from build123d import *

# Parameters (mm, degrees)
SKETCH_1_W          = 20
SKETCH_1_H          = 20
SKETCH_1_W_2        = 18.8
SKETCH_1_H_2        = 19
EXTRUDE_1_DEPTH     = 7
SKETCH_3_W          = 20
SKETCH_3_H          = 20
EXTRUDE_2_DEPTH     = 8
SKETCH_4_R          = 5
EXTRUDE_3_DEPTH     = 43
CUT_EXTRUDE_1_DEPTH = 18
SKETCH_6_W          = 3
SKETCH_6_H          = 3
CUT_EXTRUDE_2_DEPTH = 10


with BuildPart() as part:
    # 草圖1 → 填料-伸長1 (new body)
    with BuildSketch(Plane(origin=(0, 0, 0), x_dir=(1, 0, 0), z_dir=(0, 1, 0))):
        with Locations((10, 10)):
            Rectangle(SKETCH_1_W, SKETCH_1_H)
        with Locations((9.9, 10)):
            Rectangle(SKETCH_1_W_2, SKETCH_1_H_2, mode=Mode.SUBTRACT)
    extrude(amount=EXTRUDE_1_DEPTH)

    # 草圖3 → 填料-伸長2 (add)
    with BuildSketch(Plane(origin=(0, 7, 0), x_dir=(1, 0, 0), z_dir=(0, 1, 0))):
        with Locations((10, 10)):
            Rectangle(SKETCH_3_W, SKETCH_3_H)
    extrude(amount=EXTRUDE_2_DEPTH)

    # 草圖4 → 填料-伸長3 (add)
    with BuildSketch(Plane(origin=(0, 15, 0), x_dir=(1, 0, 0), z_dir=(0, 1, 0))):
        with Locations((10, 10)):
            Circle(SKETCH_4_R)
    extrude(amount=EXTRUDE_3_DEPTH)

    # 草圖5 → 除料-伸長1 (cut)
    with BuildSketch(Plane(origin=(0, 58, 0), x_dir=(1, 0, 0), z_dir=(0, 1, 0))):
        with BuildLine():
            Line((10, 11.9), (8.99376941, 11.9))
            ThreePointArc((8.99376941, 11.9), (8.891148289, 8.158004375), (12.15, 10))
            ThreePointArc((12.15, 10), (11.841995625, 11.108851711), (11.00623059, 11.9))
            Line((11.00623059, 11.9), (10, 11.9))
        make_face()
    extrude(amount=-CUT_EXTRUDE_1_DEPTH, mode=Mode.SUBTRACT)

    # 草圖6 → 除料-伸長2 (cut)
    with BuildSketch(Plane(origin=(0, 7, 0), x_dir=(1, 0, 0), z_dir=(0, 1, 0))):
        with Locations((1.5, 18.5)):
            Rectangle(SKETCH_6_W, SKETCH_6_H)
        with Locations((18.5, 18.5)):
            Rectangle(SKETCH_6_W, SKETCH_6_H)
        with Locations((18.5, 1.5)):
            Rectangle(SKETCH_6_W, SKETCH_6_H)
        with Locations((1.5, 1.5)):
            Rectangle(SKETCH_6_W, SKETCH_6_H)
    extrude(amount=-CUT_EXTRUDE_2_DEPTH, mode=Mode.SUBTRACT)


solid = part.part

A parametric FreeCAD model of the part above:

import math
import FreeCAD as App
import Part
import Sketcher
Q = App.Units.Quantity

doc = App.newDocument("Part")
body = doc.addObject("PartDesign::Body", "Body")

# Sketch on XZ plane
sketch1 = body.newObject("Sketcher::SketchObject", "Sketch")
sketch1.AttachmentSupport = (doc.getObject("XZ_Plane"), [""])
sketch1.MapMode = "FlatFace"
sketch1.addGeometry([
    Part.LineSegment(App.Vector(0, -20, 0), App.Vector(0, 0, 0)),  # 0
    Part.LineSegment(App.Vector(0, 0, 0), App.Vector(20, 0, 0)),  # 1
    Part.LineSegment(App.Vector(20, 0, 0), App.Vector(20, -20, 0)),  # 2
    Part.LineSegment(App.Vector(20, -20, 0), App.Vector(0, -20, 0)),  # 3
    Part.LineSegment(App.Vector(19, 0, 0), App.Vector(0, 0, 0)),  # 4
    Part.LineSegment(App.Vector(0, 0, 0), App.Vector(0, -20, 0)),  # 5
    Part.LineSegment(App.Vector(0, -20, 0), App.Vector(19, -20, 0)),  # 6
    Part.LineSegment(App.Vector(19, -20, 0), App.Vector(19, 0, 0)),  # 7
], False)
sketch1.addConstraint([
    Sketcher.Constraint("Coincident", 0, 2, 1, 1),
    Sketcher.Constraint("Coincident", 1, 2, 2, 1),
    Sketcher.Constraint("Coincident", 2, 2, 3, 1),
    Sketcher.Constraint("Coincident", 3, 2, 0, 1),
    Sketcher.Constraint("Coincident", 4, 2, 5, 1),
    Sketcher.Constraint("Coincident", 5, 2, 6, 1),
    Sketcher.Constraint("Coincident", 6, 2, 7, 1),
    Sketcher.Constraint("Coincident", 7, 2, 4, 1),
    Sketcher.Constraint("Vertical", 0),
    Sketcher.Constraint("Horizontal", 1),
    Sketcher.Constraint("Vertical", 2),
    Sketcher.Constraint("Horizontal", 3),
    Sketcher.Constraint("Horizontal", 4),
    Sketcher.Constraint("Vertical", 5),
    Sketcher.Constraint("Horizontal", 6),
    Sketcher.Constraint("Vertical", 7),
    Sketcher.Constraint("Coincident", 0, 2, -1, 1),
    Sketcher.Constraint("Equal", 3, 0),
    Sketcher.Constraint("DistanceX", 1, 1, 1, 2, Q("20 mm")),
    Sketcher.Constraint("DistanceY", 5, 2, 5, 1, Q("19 mm")),
    Sketcher.Constraint("DistanceX", 4, 2, 4, 1, Q("18.8 mm")),
    Sketcher.Constraint("DistanceX", -1, 1, 4, 2, Q("0.5 mm")),
    Sketcher.Constraint("DistanceY", 4, 2, -1, 1, Q("0.5 mm")),
])
pad1 = body.newObject("PartDesign::Pad", "Pad")
pad1.Profile = sketch1
pad1.Length = 7
pad1.Reversed = True

# Sketch on XZ plane
sketch2 = body.newObject("Sketcher::SketchObject", "Sketch001")
sketch2.AttachmentSupport = (doc.getObject("XZ_Plane"), [""])
sketch2.MapMode = "FlatFace"
sketch2.AttachmentOffset = App.Placement(App.Vector(0, 0, -7), App.Rotation())
sketch2.addGeometry([
    Part.LineSegment(App.Vector(0, -20, 0), App.Vector(0, 0, 0)),
    Part.LineSegment(App.Vector(0, 0, 0), App.Vector(20, 0, 0)),
    Part.LineSegment(App.Vector(20, 0, 0), App.Vector(20, -20, 0)),
    Part.LineSegment(App.Vector(20, -20, 0), App.Vector(0, -20, 0)),
], False)
sketch2.addConstraint([
    Sketcher.Constraint("Coincident", 0, 2, 1, 1),
    Sketcher.Constraint("Coincident", 1, 2, 2, 1),
    Sketcher.Constraint("Coincident", 2, 2, 3, 1),
    Sketcher.Constraint("Coincident", 3, 2, 0, 1),
    Sketcher.Constraint("Vertical", 0),
    Sketcher.Constraint("Horizontal", 1),
    Sketcher.Constraint("Vertical", 2),
    Sketcher.Constraint("Horizontal", 3),
    Sketcher.Constraint("Coincident", 0, 2, -1, 1),
    Sketcher.Constraint("Equal", 3, 0),
    Sketcher.Constraint("DistanceX", 1, 1, 1, 2, Q("20 mm")),
])
pad2 = body.newObject("PartDesign::Pad", "Pad001")
pad2.Profile = sketch2
pad2.Length = 8
pad2.Reversed = True

# Sketch on XZ plane
sketch3 = body.newObject("Sketcher::SketchObject", "Sketch002")
sketch3.AttachmentSupport = (doc.getObject("XZ_Plane"), [""])
sketch3.MapMode = "FlatFace"
sketch3.AttachmentOffset = App.Placement(App.Vector(0, 0, -15), App.Rotation())
sketch3.addGeometry(Part.Circle(App.Vector(10, -10, 0), App.Vector(0, 0, 1), 5), False)
sketch3.addConstraint([
    Sketcher.Constraint("Diameter", 0, Q("10 mm")),
    Sketcher.Constraint("DistanceX", -1, 1, 0, 3, Q("10 mm")),
    Sketcher.Constraint("DistanceY", 0, 3, -1, 1, Q("10 mm")),
])
pad3 = body.newObject("PartDesign::Pad", "Pad002")
pad3.Profile = sketch3
pad3.Length = 43
pad3.Reversed = True

# Sketch on XZ plane
sketch4 = body.newObject("Sketcher::SketchObject", "Sketch003")
sketch4.AttachmentSupport = (doc.getObject("XZ_Plane"), [""])
sketch4.MapMode = "FlatFace"
sketch4.AttachmentOffset = App.Placement(App.Vector(0, 0, -58), App.Rotation())
sketch4.addGeometry([
    Part.ArcOfCircle(Part.Circle(App.Vector(10, -10, 0), App.Vector(0, 0, 1), 2.1), math.radians(0), math.radians(242)),
    Part.ArcOfCircle(Part.Circle(App.Vector(10, -10, 0), App.Vector(0, 0, 1), 2.2), math.radians(-62), math.radians(0)),
    Part.LineSegment(App.Vector(11, -11.9, 0), App.Vector(9, -11.9, 0)),
], False)
sketch4.addConstraint([
    Sketcher.Constraint("Tangent", 0, 1, 1, 2),
    Sketcher.Constraint("Coincident", 1, 1, 2, 1),
    Sketcher.Constraint("Coincident", 2, 2, 0, 2),
    Sketcher.Constraint("Horizontal", 2),
    Sketcher.Constraint("Equal", 0, 1),
    Sketcher.Constraint("Horizontal", 1, 3, 0, 1),
    Sketcher.Constraint("Radius", 0, Q("2.15 mm")),
    Sketcher.Constraint("DistanceX", -1, 1, 0, 3, Q("10 mm")),
    Sketcher.Constraint("DistanceY", 0, 3, -1, 1, Q("10 mm")),
    Sketcher.Constraint("DistanceY", 1, 1, -1, 1, Q("11.9 mm")),
])
pocket1 = body.newObject("PartDesign::Pocket", "Pocket")
pocket1.Profile = sketch4
pocket1.Length = 18
pocket1.Reversed = True

# Sketch on XZ plane
sketch5 = body.newObject("Sketcher::SketchObject", "Sketch004")
sketch5.AttachmentSupport = (doc.getObject("XZ_Plane"), [""])
sketch5.MapMode = "FlatFace"
sketch5.AttachmentOffset = App.Placement(App.Vector(0, 0, -7), App.Rotation())
sketch5.addGeometry([
    Part.LineSegment(App.Vector(0, -20, 0), App.Vector(0, -17, 0)),  # 0
    Part.LineSegment(App.Vector(0, -17, 0), App.Vector(3, -17, 0)),  # 1
    Part.LineSegment(App.Vector(3, -17, 0), App.Vector(3, -20, 0)),  # 2
    Part.LineSegment(App.Vector(3, -20, 0), App.Vector(0, -20, 0)),  # 3
    Part.LineSegment(App.Vector(17, -20, 0), App.Vector(17, -17, 0)),  # 4
    Part.LineSegment(App.Vector(17, -17, 0), App.Vector(20, -17, 0)),  # 5
    Part.LineSegment(App.Vector(20, -17, 0), App.Vector(20, -20, 0)),  # 6
    Part.LineSegment(App.Vector(20, -20, 0), App.Vector(17, -20, 0)),  # 7
    Part.LineSegment(App.Vector(17, -3, 0), App.Vector(17, 0, 0)),  # 8
    Part.LineSegment(App.Vector(17, 0, 0), App.Vector(20, 0, 0)),  # 9
    Part.LineSegment(App.Vector(20, 0, 0), App.Vector(20, -3, 0)),  # 10
    Part.LineSegment(App.Vector(20, -3, 0), App.Vector(17, -3, 0)),  # 11
    Part.LineSegment(App.Vector(0, -3, 0), App.Vector(0, 0, 0)),  # 12
    Part.LineSegment(App.Vector(0, 0, 0), App.Vector(3, 0, 0)),  # 13
    Part.LineSegment(App.Vector(3, 0, 0), App.Vector(3, -3, 0)),  # 14
    Part.LineSegment(App.Vector(3, -3, 0), App.Vector(0, -3, 0)),  # 15
], False)
sketch5.addConstraint([
    Sketcher.Constraint("Coincident", 0, 2, 1, 1),
    Sketcher.Constraint("Coincident", 1, 2, 2, 1),
    Sketcher.Constraint("Coincident", 2, 2, 3, 1),
    Sketcher.Constraint("Coincident", 3, 2, 0, 1),
    Sketcher.Constraint("Coincident", 4, 2, 5, 1),
    Sketcher.Constraint("Coincident", 5, 2, 6, 1),
    Sketcher.Constraint("Coincident", 6, 2, 7, 1),
    Sketcher.Constraint("Coincident", 7, 2, 4, 1),
    Sketcher.Constraint("Coincident", 8, 2, 9, 1),
    Sketcher.Constraint("Coincident", 9, 2, 10, 1),
    Sketcher.Constraint("Coincident", 10, 2, 11, 1),
    Sketcher.Constraint("Coincident", 11, 2, 8, 1),
    Sketcher.Constraint("Coincident", 12, 2, 13, 1),
    Sketcher.Constraint("Coincident", 13, 2, 14, 1),
    Sketcher.Constraint("Coincident", 14, 2, 15, 1),
    Sketcher.Constraint("Coincident", 15, 2, 12, 1),
    Sketcher.Constraint("Vertical", 0),
    Sketcher.Constraint("Horizontal", 1),
    Sketcher.Constraint("Vertical", 2),
    Sketcher.Constraint("Horizontal", 3),
    Sketcher.Constraint("Vertical", 4),
    Sketcher.Constraint("Horizontal", 5),
    Sketcher.Constraint("Vertical", 6),
    Sketcher.Constraint("Horizontal", 7),
    Sketcher.Constraint("Vertical", 8),
    Sketcher.Constraint("Horizontal", 9),
    Sketcher.Constraint("Vertical", 10),
    Sketcher.Constraint("Horizontal", 11),
    Sketcher.Constraint("Vertical", 12),
    Sketcher.Constraint("Horizontal", 13),
    Sketcher.Constraint("Vertical", 14),
    Sketcher.Constraint("Horizontal", 15),
    Sketcher.Constraint("Coincident", 12, 2, -1, 1),
    Sketcher.Constraint("PointOnObject", 0, 2, -2),
    Sketcher.Constraint("PointOnObject", 8, 2, -1),
    Sketcher.Constraint("Horizontal", 1, 2, 4, 2),
    Sketcher.Constraint("Horizontal", 3, 2, 6, 2),
    Sketcher.Constraint("Horizontal", 11, 2, 14, 2),
    Sketcher.Constraint("Vertical", 7, 2, 8, 2),
    Sketcher.Constraint("Vertical", 6, 2, 9, 2),
    Sketcher.Constraint("Vertical", 2, 2, 13, 2),
    Sketcher.Constraint("Equal", 3, 5),
    Sketcher.Constraint("Equal", 15, 0),
    Sketcher.Constraint("Equal", 6, 8),
    Sketcher.Constraint("DistanceX", 1, 1, 1, 2, Q("3 mm")),
    Sketcher.Constraint("DistanceY", 0, 2, -1, 1, Q("17 mm")),
    Sketcher.Constraint("DistanceX", -1, 1, 4, 2, Q("17 mm")),
])
pocket2 = body.newObject("PartDesign::Pocket", "Pocket001")
pocket2.Profile = sketch5
pocket2.Length = 10
pocket2.Reversed = True

doc.recompute()
